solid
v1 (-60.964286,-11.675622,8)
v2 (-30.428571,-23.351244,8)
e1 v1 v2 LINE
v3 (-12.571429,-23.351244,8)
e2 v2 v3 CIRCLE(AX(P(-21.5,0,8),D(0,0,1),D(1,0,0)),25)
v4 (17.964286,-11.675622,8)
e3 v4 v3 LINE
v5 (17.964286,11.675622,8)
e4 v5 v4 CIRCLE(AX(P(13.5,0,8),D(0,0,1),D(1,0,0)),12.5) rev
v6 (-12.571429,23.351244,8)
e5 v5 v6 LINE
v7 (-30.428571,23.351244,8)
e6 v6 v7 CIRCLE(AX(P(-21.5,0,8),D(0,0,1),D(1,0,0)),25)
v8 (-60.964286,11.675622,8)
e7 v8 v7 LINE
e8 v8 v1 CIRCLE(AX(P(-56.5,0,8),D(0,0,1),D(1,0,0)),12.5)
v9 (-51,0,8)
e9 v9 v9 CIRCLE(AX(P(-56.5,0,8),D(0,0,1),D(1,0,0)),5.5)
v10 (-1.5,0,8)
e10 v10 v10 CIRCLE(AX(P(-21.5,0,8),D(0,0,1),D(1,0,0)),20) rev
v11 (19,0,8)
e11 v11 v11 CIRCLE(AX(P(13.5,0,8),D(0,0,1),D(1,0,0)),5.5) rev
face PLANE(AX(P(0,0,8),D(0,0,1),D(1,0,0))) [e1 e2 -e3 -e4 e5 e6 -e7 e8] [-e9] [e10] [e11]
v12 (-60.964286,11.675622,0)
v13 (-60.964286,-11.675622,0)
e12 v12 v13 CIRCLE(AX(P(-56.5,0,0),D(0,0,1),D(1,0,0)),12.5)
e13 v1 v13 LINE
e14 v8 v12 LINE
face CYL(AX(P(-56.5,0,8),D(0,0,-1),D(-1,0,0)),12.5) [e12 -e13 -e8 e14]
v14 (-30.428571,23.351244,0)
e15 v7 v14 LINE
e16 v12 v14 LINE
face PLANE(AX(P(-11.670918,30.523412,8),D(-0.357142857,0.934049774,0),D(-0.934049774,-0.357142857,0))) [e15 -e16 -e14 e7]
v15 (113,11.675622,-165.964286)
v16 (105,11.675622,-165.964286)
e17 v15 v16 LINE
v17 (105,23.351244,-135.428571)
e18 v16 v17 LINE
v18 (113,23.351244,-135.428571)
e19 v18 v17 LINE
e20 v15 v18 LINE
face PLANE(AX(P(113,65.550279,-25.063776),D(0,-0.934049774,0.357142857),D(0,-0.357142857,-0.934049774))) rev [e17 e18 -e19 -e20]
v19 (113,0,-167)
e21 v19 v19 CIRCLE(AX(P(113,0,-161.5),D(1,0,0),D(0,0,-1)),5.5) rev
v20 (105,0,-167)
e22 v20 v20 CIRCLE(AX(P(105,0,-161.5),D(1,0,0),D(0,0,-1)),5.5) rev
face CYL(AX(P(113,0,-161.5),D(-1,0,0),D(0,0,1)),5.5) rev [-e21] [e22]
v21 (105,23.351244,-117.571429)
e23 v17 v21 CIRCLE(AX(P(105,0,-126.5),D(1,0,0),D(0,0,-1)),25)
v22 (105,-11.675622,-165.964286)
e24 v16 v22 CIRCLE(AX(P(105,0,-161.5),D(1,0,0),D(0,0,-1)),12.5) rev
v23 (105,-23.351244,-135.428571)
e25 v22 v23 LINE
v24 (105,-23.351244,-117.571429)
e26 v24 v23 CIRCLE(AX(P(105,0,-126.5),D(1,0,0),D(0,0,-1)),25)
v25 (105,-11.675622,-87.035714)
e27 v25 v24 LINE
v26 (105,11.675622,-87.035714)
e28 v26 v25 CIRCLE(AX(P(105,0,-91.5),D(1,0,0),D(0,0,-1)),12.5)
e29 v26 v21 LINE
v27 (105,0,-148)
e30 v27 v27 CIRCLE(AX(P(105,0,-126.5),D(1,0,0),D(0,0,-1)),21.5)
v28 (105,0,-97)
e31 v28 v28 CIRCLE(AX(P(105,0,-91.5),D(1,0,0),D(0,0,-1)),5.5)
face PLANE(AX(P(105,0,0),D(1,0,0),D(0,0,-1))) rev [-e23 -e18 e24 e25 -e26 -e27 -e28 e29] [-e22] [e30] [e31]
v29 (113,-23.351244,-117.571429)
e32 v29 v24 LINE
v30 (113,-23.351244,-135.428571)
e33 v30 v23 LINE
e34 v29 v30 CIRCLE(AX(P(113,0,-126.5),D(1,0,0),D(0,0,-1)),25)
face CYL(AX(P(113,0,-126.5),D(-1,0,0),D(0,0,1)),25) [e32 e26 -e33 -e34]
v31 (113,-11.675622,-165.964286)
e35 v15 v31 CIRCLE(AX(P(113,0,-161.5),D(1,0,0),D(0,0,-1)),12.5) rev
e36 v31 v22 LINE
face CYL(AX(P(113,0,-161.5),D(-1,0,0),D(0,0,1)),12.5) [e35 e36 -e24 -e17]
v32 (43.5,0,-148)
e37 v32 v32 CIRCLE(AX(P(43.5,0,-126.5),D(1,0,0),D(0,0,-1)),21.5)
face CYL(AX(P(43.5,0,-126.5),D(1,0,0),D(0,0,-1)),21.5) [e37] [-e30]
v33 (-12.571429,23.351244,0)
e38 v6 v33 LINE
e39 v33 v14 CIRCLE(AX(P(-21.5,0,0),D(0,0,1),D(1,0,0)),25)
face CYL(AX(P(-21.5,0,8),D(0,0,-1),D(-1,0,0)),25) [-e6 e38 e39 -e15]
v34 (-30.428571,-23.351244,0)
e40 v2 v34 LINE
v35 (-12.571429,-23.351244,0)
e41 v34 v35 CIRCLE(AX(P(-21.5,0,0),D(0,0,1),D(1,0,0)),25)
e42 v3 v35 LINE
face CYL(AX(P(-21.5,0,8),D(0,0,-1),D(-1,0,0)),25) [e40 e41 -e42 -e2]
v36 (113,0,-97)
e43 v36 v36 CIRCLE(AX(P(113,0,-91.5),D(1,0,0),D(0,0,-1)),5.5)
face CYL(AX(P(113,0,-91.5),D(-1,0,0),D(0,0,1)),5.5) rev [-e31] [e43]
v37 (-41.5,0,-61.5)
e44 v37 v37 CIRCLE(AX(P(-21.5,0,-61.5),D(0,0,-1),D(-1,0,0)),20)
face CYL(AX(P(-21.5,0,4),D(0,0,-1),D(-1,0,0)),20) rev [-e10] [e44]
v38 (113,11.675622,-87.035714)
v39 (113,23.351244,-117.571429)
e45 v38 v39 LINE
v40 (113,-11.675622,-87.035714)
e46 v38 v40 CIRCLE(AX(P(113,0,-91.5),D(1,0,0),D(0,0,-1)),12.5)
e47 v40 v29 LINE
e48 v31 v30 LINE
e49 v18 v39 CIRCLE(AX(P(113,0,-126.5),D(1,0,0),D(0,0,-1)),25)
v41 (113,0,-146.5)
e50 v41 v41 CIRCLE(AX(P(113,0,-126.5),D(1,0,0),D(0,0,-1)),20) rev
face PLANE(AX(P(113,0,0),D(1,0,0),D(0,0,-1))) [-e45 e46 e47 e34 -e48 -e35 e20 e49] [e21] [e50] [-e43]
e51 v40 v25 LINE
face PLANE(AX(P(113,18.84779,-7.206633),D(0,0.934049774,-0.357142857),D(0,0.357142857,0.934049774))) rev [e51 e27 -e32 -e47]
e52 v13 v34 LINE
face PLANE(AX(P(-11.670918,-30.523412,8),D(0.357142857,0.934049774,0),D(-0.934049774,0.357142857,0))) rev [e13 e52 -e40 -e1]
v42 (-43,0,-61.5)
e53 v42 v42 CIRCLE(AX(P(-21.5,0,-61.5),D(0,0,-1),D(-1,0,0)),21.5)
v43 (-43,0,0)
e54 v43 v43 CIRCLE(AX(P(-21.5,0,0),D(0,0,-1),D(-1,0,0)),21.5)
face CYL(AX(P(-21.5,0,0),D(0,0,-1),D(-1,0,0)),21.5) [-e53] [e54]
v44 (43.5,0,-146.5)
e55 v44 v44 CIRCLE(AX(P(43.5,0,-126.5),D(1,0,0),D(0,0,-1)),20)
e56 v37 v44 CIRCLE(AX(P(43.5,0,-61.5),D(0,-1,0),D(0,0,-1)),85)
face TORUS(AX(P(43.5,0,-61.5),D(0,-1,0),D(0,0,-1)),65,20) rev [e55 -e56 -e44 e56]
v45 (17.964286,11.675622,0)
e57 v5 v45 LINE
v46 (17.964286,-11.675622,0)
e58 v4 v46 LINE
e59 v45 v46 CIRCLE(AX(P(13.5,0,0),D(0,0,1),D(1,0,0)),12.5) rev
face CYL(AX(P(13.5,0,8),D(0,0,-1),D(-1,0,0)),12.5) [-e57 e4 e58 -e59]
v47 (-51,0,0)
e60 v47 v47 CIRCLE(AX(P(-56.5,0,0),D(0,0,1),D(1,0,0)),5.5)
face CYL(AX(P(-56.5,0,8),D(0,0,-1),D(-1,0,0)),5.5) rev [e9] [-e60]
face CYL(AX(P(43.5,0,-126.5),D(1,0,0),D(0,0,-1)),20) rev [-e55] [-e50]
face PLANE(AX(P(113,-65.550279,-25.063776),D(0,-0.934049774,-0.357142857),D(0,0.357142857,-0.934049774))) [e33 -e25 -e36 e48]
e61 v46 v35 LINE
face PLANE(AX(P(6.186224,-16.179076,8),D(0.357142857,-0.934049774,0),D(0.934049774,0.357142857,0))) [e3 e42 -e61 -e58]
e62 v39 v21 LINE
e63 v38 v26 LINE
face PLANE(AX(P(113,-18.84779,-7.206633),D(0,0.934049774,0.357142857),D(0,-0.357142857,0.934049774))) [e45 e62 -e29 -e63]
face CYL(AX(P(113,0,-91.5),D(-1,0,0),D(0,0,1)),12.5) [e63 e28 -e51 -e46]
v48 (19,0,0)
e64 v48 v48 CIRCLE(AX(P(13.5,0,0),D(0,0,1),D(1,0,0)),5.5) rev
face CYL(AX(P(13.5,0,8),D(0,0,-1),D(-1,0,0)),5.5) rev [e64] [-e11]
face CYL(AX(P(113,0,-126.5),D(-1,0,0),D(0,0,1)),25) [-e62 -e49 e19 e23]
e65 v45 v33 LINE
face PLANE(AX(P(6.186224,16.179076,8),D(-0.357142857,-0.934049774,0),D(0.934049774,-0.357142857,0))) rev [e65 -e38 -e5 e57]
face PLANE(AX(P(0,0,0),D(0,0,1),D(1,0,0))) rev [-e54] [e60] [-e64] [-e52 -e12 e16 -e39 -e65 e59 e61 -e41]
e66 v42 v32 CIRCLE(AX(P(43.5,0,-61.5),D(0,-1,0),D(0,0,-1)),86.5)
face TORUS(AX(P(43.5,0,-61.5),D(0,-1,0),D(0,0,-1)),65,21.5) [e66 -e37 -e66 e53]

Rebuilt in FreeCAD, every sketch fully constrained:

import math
import FreeCAD as App
import Part
import Sketcher

doc = App.newDocument("Part")
body = doc.addObject("PartDesign::Body", "Body")

sketch1 = body.newObject("Sketcher::SketchObject", "Sketch")
sketch1.AttachmentSupport = (doc.getObject("YZ_Plane"), [""])
sketch1.MapMode = "FlatFace"
sketch1.AttachmentOffset = App.Placement(App.Vector(0, 0, 105), App.Rotation())
sketch1.addGeometry(Part.Circle(App.Vector(0, -126, 0), App.Vector(0, 0, 1), 22), False)
sketch1.addConstraint(Sketcher.Constraint("PointOnObject", 0, 3, -2))
sketch1.addConstraint(Sketcher.Constraint("Diameter", 0, 43.0))
sketch1.addConstraint(Sketcher.Constraint("DistanceY", 0, 3, -1, 1, 126.5))

sketch2 = body.newObject("Sketcher::SketchObject", "Sketch001")
sketch2.AttachmentSupport = (doc.getObject("XZ_Plane"), [""])
sketch2.MapMode = "FlatFace"
sketch2.addGeometry(Part.LineSegment(App.Vector(105, -126, 0), App.Vector(44, -126, 0)), False)
sketch2.addGeometry(Part.ArcOfCircle(Part.Circle(App.Vector(44, -62, 0), App.Vector(0, 0, 1), 65), math.radians(180), math.radians(270)), False)
sketch2.addGeometry(Part.LineSegment(App.Vector(-22, -62, 0), App.Vector(-22, 0, 0)), False)
sketch2.addConstraint(Sketcher.Constraint("Tangent", 0, 2, 1, 2))
sketch2.addConstraint(Sketcher.Constraint("Tangent", 1, 1, 2, 1))
sketch2.addConstraint(Sketcher.Constraint("Horizontal", 0))
sketch2.addConstraint(Sketcher.Constraint("Vertical", 2))
sketch2.addConstraint(Sketcher.Constraint("PointOnObject", 2, 2, -1))
sketch2.addConstraint(Sketcher.Constraint("Equal", 0, 2))
sketch2.addConstraint(Sketcher.Constraint("Radius", 1, 65.0))
sketch2.addConstraint(Sketcher.Constraint("DistanceX", 0, 2, 0, 1, 61.5))
sketch2.addConstraint(Sketcher.Constraint("DistanceX", -1, 1, 0, 1, 105.0))
doc.recompute()

additivepipe = body.newObject("PartDesign::AdditivePipe", "AdditivePipe")
additivepipe.Profile = sketch1
additivepipe.Spine = (sketch2, ["Edge1", "Edge2", "Edge3"])

sketch3 = body.newObject("Sketcher::SketchObject", "Sketch002")
sketch3.AttachmentSupport = (doc.getObject("YZ_Plane"), [""])
sketch3.MapMode = "FlatFace"
sketch3.AttachmentOffset = App.Placement(App.Vector(0, 0, 105), App.Rotation())
sketch3.addGeometry(Part.Circle(App.Vector(0, -126, 0), App.Vector(0, 0, 1), 20), False)
sketch3.addConstraint(Sketcher.Constraint("PointOnObject", 0, 3, -2))
sketch3.addConstraint(Sketcher.Constraint("Diameter", 0, 40.0))
sketch3.addConstraint(Sketcher.Constraint("DistanceY", 0, 3, -1, 1, 126.5))

sketch4 = body.newObject("Sketcher::SketchObject", "Sketch003")
sketch4.AttachmentSupport = (doc.getObject("XZ_Plane"), [""])
sketch4.MapMode = "FlatFace"
sketch4.addGeometry(Part.LineSegment(App.Vector(105, -126, 0), App.Vector(44, -126, 0)), False)
sketch4.addGeometry(Part.ArcOfCircle(Part.Circle(App.Vector(44, -62, 0), App.Vector(0, 0, 1), 65), math.radians(180), math.radians(270)), False)
sketch4.addGeometry(Part.LineSegment(App.Vector(-22, -62, 0), App.Vector(-22, 0, 0)), False)
sketch4.addConstraint(Sketcher.Constraint("Tangent", 0, 2, 1, 2))
sketch4.addConstraint(Sketcher.Constraint("Tangent", 1, 1, 2, 1))
sketch4.addConstraint(Sketcher.Constraint("Horizontal", 0))
sketch4.addConstraint(Sketcher.Constraint("Vertical", 2))
sketch4.addConstraint(Sketcher.Constraint("PointOnObject", 2, 2, -1))
sketch4.addConstraint(Sketcher.Constraint("Equal", 0, 2))
sketch4.addConstraint(Sketcher.Constraint("Radius", 1, 65.0))
sketch4.addConstraint(Sketcher.Constraint("DistanceX", 0, 2, 0, 1, 61.5))
sketch4.addConstraint(Sketcher.Constraint("DistanceX", -1, 1, 0, 1, 105.0))
doc.recompute()

subtractivepipe = body.newObject("PartDesign::SubtractivePipe", "SubtractivePipe")
subtractivepipe.Profile = sketch3
subtractivepipe.Spine = (sketch4, ["Edge1", "Edge2", "Edge3"])

sketch5 = body.newObject("Sketcher::SketchObject", "Sketch004")
sketch5.AttachmentSupport = (doc.getObject("YZ_Plane"), [""])
sketch5.MapMode = "FlatFace"
sketch5.AttachmentOffset = App.Placement(App.Vector(0, 0, 105), App.Rotation())
sketch5.addGeometry(Part.LineSegment(App.Vector(12, -166, 0), App.Vector(23, -135, 0)), False)
sketch5.addGeometry(Part.ArcOfCircle(Part.Circle(App.Vector(0, -126, 0), App.Vector(0, 0, 1), 25), math.radians(-21), math.radians(21)), False)
sketch5.addGeometry(Part.LineSegment(App.Vector(23, -118, 0), App.Vector(12, -87, 0)), False)
sketch5.addGeometry(Part.ArcOfCircle(Part.Circle(App.Vector(0, -92, 0), App.Vector(0, 0, 1), 12), math.radians(21), math.radians(159)), False)
sketch5.addGeometry(Part.LineSegment(App.Vector(-12, -87, 0), App.Vector(-23, -118, 0)), False)
sketch5.addGeometry(Part.ArcOfCircle(Part.Circle(App.Vector(0, -126, 0), App.Vector(0, 0, 1), 25), math.radians(159), math.radians(201)), False)
sketch5.addGeometry(Part.LineSegment(App.Vector(-23, -135, 0), App.Vector(-12, -166, 0)), False)
sketch5.addGeometry(Part.ArcOfCircle(Part.Circle(App.Vector(0, -162, 0), App.Vector(0, 0, 1), 12), math.radians(-159), math.radians(-21)), False)
sketch5.addGeometry(Part.Circle(App.Vector(0, -92, 0), App.Vector(0, 0, 1), 6), False)
sketch5.addGeometry(Part.Circle(App.Vector(0, -162, 0), App.Vector(0, 0, 1), 6), False)
sketch5.addGeometry(Part.Circle(App.Vector(0, -126, 0), App.Vector(0, 0, 1), 20), False)
sketch5.addConstraint(Sketcher.Constraint("Tangent", 0, 2, 1, 1))
sketch5.addConstraint(Sketcher.Constraint("Tangent", 1, 2, 2, 1))
sketch5.addConstraint(Sketcher.Constraint("Tangent", 2, 2, 3, 1))
sketch5.addConstraint(Sketcher.Constraint("Tangent", 3, 2, 4, 1))
sketch5.addConstraint(Sketcher.Constraint("Tangent", 4, 2, 5, 1))
sketch5.addConstraint(Sketcher.Constraint("Tangent", 5, 2, 6, 1))
sketch5.addConstraint(Sketcher.Constraint("Tangent", 6, 2, 7, 1))
sketch5.addConstraint(Sketcher.Constraint("Tangent", 7, 2, 0, 1))
sketch5.addConstraint(Sketcher.Constraint("Coincident", 5, 3, 1, 3))
sketch5.addConstraint(Sketcher.Constraint("Coincident", 8, 3, 3, 3))
sketch5.addConstraint(Sketcher.Constraint("Coincident", 9, 3, 7, 3))
sketch5.addConstraint(Sketcher.Constraint("Coincident", 10, 3, 1, 3))
sketch5.addConstraint(Sketcher.Constraint("Equal", 1, 5))
sketch5.addConstraint(Sketcher.Constraint("Equal", 3, 7))
sketch5.addConstraint(Sketcher.Constraint("Equal", 8, 9))
sketch5.addConstraint(Sketcher.Constraint("Symmetric", 2, 2, 3, 2, -2))
sketch5.addConstraint(Sketcher.Constraint("PointOnObject", 7, 3, -2))
sketch5.addConstraint(Sketcher.Constraint("Parallel", 0, 4))
sketch5.addConstraint(Sketcher.Constraint("Diameter", 8, 11.0))
sketch5.addConstraint(Sketcher.Constraint("Diameter", 10, 40.0))
sketch5.addConstraint(Sketcher.Constraint("Radius", 1, 25.0))
sketch5.addConstraint(Sketcher.Constraint("Radius", 3, 12.5))
sketch5.addConstraint(Sketcher.Constraint("DistanceY", 1, 3, 3, 3, 35.0))
sketch5.addConstraint(Sketcher.Constraint("DistanceY", 1, 3, -1, 1, 126.5))
pad1 = body.newObject("PartDesign::Pad", "Pad")
pad1.Profile = sketch5
pad1.Length = 8

sketch6 = body.newObject("Sketcher::SketchObject", "Sketch005")
sketch6.AttachmentSupport = (doc.getObject("XY_Plane"), [""])
sketch6.MapMode = "FlatFace"
sketch6.AttachmentOffset = App.Placement(App.Vector(0, 0, 8), App.Rotation())
sketch6.addGeometry(Part.LineSegment(App.Vector(18, 12, 0), App.Vector(-13, 23, 0)), False)
sketch6.addGeometry(Part.ArcOfCircle(Part.Circle(App.Vector(-22, 0, 0), App.Vector(0, 0, 1), 25), math.radians(69), math.radians(111)), False)
sketch6.addGeometry(Part.LineSegment(App.Vector(-30, 23, 0), App.Vector(-61, 12, 0)), False)
sketch6.addGeometry(Part.ArcOfCircle(Part.Circle(App.Vector(-56, 0, 0), App.Vector(0, 0, 1), 12), math.radians(111), math.radians(249)), False)
sketch6.addGeometry(Part.LineSegment(App.Vector(-61, -12, 0), App.Vector(-30, -23, 0)), False)
sketch6.addGeometry(Part.ArcOfCircle(Part.Circle(App.Vector(-22, 0, 0), App.Vector(0, 0, 1), 25), math.radians(-111), math.radians(-69)), False)
sketch6.addGeometry(Part.LineSegment(App.Vector(-13, -23, 0), App.Vector(18, -12, 0)), False)
sketch6.addGeometry(Part.ArcOfCircle(Part.Circle(App.Vector(14, 0, 0), App.Vector(0, 0, 1), 12), math.radians(-69), math.radians(69)), False)
sketch6.addGeometry(Part.Circle(App.Vector(-56, 0, 0), App.Vector(0, 0, 1), 6), False)
sketch6.addGeometry(Part.Circle(App.Vector(14, 0, 0), App.Vector(0, 0, 1), 6), False)
sketch6.addGeometry(Part.Circle(App.Vector(-22, 0, 0), App.Vector(0, 0, 1), 20), False)
sketch6.addConstraint(Sketcher.Constraint("Tangent", 0, 2, 1, 1))
sketch6.addConstraint(Sketcher.Constraint("Tangent", 1, 2, 2, 1))
sketch6.addConstraint(Sketcher.Constraint("Tangent", 2, 2, 3, 1))
sketch6.addConstraint(Sketcher.Constraint("Tangent", 3, 2, 4, 1))
sketch6.addConstraint(Sketcher.Constraint("Tangent", 4, 2, 5, 1))
sketch6.addConstraint(Sketcher.Constraint("Tangent", 5, 2, 6, 1))
sketch6.addConstraint(Sketcher.Constraint("Tangent", 6, 2, 7, 1))
sketch6.addConstraint(Sketcher.Constraint("Tangent", 7, 2, 0, 1))
sketch6.addConstraint(Sketcher.Constraint("Coincident", 5, 3, 1, 3))
sketch6.addConstraint(Sketcher.Constraint("Coincident", 8, 3, 3, 3))
sketch6.addConstraint(Sketcher.Constraint("Coincident", 9, 3, 7, 3))
sketch6.addConstraint(Sketcher.Constraint("Coincident", 10, 3, 1, 3))
sketch6.addConstraint(Sketcher.Constraint("Equal", 1, 5))
sketch6.addConstraint(Sketcher.Constraint("Equal", 3, 7))
sketch6.addConstraint(Sketcher.Constraint("Equal", 8, 9))
sketch6.addConstraint(Sketcher.Constraint("Symmetric", 2, 2, 3, 2, -1))
sketch6.addConstraint(Sketcher.Constraint("PointOnObject", 7, 3, -1))
sketch6.addConstraint(Sketcher.Constraint("Parallel", 0, 4))
sketch6.addConstraint(Sketcher.Constraint("Diameter", 8, 11.0))
sketch6.addConstraint(Sketcher.Constraint("Diameter", 10, 40.0))
sketch6.addConstraint(Sketcher.Constraint("Radius", 1, 25.0))
sketch6.addConstraint(Sketcher.Constraint("Radius", 3, 12.5))
sketch6.addConstraint(Sketcher.Constraint("DistanceX", 3, 3, 1, 3, 35.0))
sketch6.addConstraint(Sketcher.Constraint("DistanceX", 1, 3, -1, 1, 21.5))
pad2 = body.newObject("PartDesign::Pad", "Pad001")
pad2.Profile = sketch6
pad2.Length = 8
pad2.Reversed = True

doc.recompute()
